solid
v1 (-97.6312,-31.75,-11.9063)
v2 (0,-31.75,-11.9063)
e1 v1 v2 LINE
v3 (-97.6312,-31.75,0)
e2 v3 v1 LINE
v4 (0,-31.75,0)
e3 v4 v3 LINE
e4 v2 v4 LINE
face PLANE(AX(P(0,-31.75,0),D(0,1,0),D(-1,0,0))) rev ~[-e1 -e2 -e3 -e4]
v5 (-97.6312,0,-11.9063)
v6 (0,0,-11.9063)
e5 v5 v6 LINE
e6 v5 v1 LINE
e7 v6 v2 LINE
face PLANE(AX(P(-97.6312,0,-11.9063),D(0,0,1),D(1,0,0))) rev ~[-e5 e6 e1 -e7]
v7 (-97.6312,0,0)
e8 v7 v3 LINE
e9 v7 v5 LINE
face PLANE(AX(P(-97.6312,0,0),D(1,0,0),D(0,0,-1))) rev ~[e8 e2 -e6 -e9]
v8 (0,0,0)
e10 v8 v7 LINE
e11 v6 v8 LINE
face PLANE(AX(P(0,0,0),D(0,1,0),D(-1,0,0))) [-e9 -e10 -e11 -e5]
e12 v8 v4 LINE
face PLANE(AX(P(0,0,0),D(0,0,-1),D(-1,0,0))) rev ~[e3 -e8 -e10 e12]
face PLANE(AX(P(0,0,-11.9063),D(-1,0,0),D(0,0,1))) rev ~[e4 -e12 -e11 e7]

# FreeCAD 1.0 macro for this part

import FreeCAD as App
import Part
import Sketcher

V = App.Vector
Q = App.Units.Quantity

doc = App.newDocument("Part")
body = doc.addObject("PartDesign::Body", "Body")

# Sketch on XZ plane
sketch1 = doc.addObject("Sketcher::SketchObject", "Sketch")
body.addObject(sketch1)
sketch1.AttachmentSupport = (doc.XZ_Plane, [""])
sketch1.MapMode = "FlatFace"
sketch1.addGeometry([
    Part.LineSegment(V(-97.6312, 0, 0), V(0, 0, 0)),
    Part.LineSegment(V(0, 0, 0), V(0, -11.9063, 0)),
    Part.LineSegment(V(0, -11.9063, 0), V(-97.6312, -11.9063, 0)),
    Part.LineSegment(V(-97.6312, -11.9063, 0), V(-97.6312, 0, 0)),
], False)
sketch1.addConstraint([
    Sketcher.Constraint("Coincident", 0, 2, 1, 1),
    Sketcher.Constraint("Coincident", 1, 2, 2, 1),
    Sketcher.Constraint("Coincident", 2, 2, 3, 1),
    Sketcher.Constraint("Coincident", 3, 2, 0, 1),
    Sketcher.Constraint("Horizontal", 0),
    Sketcher.Constraint("Vertical", 1),
    Sketcher.Constraint("Horizontal", 2),
    Sketcher.Constraint("Vertical", 3),
    Sketcher.Constraint("Coincident", 0, 2, -1, 1),
    Sketcher.Constraint("DistanceX", 0, 1, 0, 2, Q("3.843748 in")),
    Sketcher.Constraint("DistanceY", 1, 2, 1, 1, Q("0.468752 in")),
])
pad1 = doc.addObject("PartDesign::Pad", "Pad")
body.addObject(pad1)
pad1.Profile = sketch1
pad1.Length = Q("1.25 in")

doc.recompute()
